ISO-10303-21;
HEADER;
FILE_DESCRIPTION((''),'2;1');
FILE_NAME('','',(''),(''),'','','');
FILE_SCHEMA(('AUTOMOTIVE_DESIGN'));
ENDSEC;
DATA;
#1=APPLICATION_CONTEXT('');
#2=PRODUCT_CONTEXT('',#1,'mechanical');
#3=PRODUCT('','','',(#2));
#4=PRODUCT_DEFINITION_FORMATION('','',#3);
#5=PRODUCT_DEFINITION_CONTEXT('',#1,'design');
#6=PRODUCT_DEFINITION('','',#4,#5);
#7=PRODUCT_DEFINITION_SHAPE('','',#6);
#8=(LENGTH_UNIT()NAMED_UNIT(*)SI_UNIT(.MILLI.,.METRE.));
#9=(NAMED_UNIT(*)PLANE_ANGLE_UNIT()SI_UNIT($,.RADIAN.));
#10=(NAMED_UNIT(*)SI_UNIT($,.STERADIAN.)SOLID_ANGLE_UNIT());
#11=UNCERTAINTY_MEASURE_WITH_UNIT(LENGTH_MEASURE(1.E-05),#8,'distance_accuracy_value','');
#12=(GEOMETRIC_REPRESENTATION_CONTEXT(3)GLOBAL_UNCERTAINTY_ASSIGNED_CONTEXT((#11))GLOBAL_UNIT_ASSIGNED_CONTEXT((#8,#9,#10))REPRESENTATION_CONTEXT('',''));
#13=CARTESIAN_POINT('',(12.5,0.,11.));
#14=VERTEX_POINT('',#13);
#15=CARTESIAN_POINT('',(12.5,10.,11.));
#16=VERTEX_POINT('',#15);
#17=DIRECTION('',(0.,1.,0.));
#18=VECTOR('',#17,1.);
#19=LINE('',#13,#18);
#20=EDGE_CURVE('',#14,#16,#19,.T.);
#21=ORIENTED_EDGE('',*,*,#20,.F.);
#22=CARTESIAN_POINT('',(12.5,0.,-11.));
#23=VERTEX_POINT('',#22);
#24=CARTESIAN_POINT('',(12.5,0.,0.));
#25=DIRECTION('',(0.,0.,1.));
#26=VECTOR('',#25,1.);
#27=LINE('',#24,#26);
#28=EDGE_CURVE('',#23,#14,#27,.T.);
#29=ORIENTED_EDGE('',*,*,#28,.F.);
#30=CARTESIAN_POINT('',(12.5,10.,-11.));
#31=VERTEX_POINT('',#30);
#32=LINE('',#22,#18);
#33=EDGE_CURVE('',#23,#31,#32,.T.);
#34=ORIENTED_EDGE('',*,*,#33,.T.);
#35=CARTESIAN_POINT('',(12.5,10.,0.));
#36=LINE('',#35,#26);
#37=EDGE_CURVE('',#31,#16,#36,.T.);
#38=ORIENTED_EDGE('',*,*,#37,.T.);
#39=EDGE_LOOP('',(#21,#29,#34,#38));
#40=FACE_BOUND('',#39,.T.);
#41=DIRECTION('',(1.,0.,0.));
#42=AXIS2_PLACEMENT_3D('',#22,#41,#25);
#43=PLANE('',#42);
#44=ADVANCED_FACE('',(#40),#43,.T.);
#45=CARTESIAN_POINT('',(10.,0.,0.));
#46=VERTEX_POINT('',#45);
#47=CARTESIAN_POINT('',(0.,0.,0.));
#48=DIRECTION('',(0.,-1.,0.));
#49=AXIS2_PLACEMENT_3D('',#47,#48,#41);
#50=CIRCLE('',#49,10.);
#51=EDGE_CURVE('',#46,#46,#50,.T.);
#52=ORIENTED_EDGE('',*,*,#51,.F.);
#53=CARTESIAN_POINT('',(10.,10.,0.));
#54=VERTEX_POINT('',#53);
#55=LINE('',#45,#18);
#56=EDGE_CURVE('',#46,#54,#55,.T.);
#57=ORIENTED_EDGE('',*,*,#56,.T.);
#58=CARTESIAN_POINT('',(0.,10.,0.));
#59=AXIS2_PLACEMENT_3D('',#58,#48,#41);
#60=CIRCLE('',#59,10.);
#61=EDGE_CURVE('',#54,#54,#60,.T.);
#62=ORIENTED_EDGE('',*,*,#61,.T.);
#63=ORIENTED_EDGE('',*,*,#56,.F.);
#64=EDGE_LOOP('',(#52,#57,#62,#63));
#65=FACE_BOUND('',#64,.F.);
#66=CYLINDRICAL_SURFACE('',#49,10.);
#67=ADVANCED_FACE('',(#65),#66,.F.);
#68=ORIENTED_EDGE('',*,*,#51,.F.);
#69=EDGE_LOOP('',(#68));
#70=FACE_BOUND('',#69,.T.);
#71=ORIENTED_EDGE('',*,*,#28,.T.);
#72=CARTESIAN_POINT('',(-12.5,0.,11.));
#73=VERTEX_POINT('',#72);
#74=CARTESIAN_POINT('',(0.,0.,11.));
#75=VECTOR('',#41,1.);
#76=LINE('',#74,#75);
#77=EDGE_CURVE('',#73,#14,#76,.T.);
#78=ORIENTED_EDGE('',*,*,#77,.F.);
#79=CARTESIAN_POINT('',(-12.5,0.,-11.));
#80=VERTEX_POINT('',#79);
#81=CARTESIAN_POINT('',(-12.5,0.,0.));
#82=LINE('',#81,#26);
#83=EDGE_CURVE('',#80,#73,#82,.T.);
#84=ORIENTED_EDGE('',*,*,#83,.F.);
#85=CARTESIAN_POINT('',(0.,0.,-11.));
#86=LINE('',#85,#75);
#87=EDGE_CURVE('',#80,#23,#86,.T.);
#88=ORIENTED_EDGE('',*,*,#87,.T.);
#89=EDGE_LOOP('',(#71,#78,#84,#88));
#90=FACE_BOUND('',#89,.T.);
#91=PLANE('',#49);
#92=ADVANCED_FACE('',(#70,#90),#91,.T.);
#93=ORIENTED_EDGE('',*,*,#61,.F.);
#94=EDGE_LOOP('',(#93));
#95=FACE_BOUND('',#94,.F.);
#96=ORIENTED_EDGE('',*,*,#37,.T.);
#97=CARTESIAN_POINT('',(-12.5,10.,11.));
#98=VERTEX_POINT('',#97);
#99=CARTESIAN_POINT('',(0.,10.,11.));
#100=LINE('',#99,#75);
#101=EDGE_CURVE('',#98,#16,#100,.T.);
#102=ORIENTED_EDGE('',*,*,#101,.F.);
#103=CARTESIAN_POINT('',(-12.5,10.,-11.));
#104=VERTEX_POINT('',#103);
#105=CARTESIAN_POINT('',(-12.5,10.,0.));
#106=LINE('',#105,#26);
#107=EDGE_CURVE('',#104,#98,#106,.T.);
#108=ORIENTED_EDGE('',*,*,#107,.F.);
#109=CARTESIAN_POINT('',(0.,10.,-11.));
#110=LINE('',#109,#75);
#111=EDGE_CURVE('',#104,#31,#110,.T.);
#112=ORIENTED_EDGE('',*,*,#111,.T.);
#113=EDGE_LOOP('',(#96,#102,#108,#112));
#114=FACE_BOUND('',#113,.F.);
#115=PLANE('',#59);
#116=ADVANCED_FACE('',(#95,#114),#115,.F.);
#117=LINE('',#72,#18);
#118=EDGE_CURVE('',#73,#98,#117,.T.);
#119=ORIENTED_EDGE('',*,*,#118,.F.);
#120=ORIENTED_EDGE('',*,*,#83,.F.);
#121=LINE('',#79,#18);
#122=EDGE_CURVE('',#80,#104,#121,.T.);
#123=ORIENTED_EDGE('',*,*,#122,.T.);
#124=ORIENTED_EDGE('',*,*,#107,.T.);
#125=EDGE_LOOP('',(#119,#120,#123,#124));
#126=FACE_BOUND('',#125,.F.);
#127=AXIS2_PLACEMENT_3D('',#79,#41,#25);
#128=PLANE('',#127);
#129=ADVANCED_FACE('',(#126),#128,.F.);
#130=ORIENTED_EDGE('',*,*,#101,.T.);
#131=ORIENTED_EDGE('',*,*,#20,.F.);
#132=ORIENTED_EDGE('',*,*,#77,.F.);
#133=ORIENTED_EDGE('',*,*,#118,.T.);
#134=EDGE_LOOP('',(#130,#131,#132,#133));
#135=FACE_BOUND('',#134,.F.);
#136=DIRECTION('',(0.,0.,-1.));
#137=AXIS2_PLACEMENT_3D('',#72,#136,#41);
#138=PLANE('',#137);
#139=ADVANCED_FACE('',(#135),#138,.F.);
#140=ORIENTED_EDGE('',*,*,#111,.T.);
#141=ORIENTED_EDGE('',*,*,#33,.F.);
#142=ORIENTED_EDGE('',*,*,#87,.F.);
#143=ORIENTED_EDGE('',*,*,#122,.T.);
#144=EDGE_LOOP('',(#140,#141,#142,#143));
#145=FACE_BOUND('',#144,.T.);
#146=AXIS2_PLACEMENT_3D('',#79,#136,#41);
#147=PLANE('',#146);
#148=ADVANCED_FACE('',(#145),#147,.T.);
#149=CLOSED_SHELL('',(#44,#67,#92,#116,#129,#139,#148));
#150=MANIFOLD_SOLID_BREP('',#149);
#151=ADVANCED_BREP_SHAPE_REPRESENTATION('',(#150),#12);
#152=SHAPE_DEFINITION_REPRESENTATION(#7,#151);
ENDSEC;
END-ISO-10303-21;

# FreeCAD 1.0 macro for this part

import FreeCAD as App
import Part
import Sketcher
from FreeCAD import Vector
Q = App.Units.Quantity


def add_polygon(sketch, points):
    """Adds a closed chain of lines whose ends are joined by coincident constraints."""
    first, n = sketch.GeometryCount, len(points)
    for a, b in zip(points, points[1:] + points[:1]):
        sketch.addGeometry(Part.LineSegment(App.Vector(*a, 0), App.Vector(*b, 0)), False)
    for i in range(n):
        sketch.addConstraint(Sketcher.Constraint("Coincident", first + i, 2, first + (i + 1) % n, 1))

doc = App.newDocument("Part")
params = doc.addObject("Spreadsheet::Sheet", "Params")
for row, (alias, value) in enumerate([
    ("sketch1_diameter", "20 mm"),
    ("sketch1_width", "25 mm"),
    ("sketch1_height", "22 mm"),
    ("pad1_length", "10 mm"),
], start=1):
    params.set(f"A{row}", alias)
    params.set(f"B{row}", "=" + value)
    params.setAlias(f"B{row}", alias)

body = doc.addObject("PartDesign::Body", "Body")

sketch1 = doc.addObject("Sketcher::SketchObject", "Sketch")
body.addObject(sketch1)
sketch1.AttachmentSupport = (doc.XZ_Plane, [""])
sketch1.MapMode = "FlatFace"
add_polygon(sketch1, [(-12.5, 11), (-12.5, -11), (12.5, -11), (12.5, 11)])
sketch1.addGeometry(Part.Circle(Vector(0, 0, 0), Vector(0, 0, 1), 10), False)
sketch1.addConstraint([
    Sketcher.Constraint("Vertical", 0),
    Sketcher.Constraint("Horizontal", 1),
    Sketcher.Constraint("Vertical", 2),
    Sketcher.Constraint("Horizontal", 3),
    Sketcher.Constraint("Coincident", 4, 3, -1, 1),
    Sketcher.Constraint("Symmetric", 0, 2, 2, 2, -1, 1),
    Sketcher.Constraint("Diameter", 4, Q("20 mm")),
    Sketcher.Constraint("DistanceX", 1, 1, 1, 2, Q("25 mm")),
    Sketcher.Constraint("DistanceY", 0, 2, 0, 1, Q("22 mm")),
])
sketch1.setExpression("Constraints[10]", "Params.sketch1_diameter")
sketch1.setExpression("Constraints[11]", "Params.sketch1_width")
sketch1.setExpression("Constraints[12]", "Params.sketch1_height")
pad1 = doc.addObject("PartDesign::Pad", "Pad")
body.addObject(pad1)
pad1.Profile = sketch1
pad1.setExpression("Length", "Params.pad1_length")
pad1.Reversed = True

doc.recompute()
